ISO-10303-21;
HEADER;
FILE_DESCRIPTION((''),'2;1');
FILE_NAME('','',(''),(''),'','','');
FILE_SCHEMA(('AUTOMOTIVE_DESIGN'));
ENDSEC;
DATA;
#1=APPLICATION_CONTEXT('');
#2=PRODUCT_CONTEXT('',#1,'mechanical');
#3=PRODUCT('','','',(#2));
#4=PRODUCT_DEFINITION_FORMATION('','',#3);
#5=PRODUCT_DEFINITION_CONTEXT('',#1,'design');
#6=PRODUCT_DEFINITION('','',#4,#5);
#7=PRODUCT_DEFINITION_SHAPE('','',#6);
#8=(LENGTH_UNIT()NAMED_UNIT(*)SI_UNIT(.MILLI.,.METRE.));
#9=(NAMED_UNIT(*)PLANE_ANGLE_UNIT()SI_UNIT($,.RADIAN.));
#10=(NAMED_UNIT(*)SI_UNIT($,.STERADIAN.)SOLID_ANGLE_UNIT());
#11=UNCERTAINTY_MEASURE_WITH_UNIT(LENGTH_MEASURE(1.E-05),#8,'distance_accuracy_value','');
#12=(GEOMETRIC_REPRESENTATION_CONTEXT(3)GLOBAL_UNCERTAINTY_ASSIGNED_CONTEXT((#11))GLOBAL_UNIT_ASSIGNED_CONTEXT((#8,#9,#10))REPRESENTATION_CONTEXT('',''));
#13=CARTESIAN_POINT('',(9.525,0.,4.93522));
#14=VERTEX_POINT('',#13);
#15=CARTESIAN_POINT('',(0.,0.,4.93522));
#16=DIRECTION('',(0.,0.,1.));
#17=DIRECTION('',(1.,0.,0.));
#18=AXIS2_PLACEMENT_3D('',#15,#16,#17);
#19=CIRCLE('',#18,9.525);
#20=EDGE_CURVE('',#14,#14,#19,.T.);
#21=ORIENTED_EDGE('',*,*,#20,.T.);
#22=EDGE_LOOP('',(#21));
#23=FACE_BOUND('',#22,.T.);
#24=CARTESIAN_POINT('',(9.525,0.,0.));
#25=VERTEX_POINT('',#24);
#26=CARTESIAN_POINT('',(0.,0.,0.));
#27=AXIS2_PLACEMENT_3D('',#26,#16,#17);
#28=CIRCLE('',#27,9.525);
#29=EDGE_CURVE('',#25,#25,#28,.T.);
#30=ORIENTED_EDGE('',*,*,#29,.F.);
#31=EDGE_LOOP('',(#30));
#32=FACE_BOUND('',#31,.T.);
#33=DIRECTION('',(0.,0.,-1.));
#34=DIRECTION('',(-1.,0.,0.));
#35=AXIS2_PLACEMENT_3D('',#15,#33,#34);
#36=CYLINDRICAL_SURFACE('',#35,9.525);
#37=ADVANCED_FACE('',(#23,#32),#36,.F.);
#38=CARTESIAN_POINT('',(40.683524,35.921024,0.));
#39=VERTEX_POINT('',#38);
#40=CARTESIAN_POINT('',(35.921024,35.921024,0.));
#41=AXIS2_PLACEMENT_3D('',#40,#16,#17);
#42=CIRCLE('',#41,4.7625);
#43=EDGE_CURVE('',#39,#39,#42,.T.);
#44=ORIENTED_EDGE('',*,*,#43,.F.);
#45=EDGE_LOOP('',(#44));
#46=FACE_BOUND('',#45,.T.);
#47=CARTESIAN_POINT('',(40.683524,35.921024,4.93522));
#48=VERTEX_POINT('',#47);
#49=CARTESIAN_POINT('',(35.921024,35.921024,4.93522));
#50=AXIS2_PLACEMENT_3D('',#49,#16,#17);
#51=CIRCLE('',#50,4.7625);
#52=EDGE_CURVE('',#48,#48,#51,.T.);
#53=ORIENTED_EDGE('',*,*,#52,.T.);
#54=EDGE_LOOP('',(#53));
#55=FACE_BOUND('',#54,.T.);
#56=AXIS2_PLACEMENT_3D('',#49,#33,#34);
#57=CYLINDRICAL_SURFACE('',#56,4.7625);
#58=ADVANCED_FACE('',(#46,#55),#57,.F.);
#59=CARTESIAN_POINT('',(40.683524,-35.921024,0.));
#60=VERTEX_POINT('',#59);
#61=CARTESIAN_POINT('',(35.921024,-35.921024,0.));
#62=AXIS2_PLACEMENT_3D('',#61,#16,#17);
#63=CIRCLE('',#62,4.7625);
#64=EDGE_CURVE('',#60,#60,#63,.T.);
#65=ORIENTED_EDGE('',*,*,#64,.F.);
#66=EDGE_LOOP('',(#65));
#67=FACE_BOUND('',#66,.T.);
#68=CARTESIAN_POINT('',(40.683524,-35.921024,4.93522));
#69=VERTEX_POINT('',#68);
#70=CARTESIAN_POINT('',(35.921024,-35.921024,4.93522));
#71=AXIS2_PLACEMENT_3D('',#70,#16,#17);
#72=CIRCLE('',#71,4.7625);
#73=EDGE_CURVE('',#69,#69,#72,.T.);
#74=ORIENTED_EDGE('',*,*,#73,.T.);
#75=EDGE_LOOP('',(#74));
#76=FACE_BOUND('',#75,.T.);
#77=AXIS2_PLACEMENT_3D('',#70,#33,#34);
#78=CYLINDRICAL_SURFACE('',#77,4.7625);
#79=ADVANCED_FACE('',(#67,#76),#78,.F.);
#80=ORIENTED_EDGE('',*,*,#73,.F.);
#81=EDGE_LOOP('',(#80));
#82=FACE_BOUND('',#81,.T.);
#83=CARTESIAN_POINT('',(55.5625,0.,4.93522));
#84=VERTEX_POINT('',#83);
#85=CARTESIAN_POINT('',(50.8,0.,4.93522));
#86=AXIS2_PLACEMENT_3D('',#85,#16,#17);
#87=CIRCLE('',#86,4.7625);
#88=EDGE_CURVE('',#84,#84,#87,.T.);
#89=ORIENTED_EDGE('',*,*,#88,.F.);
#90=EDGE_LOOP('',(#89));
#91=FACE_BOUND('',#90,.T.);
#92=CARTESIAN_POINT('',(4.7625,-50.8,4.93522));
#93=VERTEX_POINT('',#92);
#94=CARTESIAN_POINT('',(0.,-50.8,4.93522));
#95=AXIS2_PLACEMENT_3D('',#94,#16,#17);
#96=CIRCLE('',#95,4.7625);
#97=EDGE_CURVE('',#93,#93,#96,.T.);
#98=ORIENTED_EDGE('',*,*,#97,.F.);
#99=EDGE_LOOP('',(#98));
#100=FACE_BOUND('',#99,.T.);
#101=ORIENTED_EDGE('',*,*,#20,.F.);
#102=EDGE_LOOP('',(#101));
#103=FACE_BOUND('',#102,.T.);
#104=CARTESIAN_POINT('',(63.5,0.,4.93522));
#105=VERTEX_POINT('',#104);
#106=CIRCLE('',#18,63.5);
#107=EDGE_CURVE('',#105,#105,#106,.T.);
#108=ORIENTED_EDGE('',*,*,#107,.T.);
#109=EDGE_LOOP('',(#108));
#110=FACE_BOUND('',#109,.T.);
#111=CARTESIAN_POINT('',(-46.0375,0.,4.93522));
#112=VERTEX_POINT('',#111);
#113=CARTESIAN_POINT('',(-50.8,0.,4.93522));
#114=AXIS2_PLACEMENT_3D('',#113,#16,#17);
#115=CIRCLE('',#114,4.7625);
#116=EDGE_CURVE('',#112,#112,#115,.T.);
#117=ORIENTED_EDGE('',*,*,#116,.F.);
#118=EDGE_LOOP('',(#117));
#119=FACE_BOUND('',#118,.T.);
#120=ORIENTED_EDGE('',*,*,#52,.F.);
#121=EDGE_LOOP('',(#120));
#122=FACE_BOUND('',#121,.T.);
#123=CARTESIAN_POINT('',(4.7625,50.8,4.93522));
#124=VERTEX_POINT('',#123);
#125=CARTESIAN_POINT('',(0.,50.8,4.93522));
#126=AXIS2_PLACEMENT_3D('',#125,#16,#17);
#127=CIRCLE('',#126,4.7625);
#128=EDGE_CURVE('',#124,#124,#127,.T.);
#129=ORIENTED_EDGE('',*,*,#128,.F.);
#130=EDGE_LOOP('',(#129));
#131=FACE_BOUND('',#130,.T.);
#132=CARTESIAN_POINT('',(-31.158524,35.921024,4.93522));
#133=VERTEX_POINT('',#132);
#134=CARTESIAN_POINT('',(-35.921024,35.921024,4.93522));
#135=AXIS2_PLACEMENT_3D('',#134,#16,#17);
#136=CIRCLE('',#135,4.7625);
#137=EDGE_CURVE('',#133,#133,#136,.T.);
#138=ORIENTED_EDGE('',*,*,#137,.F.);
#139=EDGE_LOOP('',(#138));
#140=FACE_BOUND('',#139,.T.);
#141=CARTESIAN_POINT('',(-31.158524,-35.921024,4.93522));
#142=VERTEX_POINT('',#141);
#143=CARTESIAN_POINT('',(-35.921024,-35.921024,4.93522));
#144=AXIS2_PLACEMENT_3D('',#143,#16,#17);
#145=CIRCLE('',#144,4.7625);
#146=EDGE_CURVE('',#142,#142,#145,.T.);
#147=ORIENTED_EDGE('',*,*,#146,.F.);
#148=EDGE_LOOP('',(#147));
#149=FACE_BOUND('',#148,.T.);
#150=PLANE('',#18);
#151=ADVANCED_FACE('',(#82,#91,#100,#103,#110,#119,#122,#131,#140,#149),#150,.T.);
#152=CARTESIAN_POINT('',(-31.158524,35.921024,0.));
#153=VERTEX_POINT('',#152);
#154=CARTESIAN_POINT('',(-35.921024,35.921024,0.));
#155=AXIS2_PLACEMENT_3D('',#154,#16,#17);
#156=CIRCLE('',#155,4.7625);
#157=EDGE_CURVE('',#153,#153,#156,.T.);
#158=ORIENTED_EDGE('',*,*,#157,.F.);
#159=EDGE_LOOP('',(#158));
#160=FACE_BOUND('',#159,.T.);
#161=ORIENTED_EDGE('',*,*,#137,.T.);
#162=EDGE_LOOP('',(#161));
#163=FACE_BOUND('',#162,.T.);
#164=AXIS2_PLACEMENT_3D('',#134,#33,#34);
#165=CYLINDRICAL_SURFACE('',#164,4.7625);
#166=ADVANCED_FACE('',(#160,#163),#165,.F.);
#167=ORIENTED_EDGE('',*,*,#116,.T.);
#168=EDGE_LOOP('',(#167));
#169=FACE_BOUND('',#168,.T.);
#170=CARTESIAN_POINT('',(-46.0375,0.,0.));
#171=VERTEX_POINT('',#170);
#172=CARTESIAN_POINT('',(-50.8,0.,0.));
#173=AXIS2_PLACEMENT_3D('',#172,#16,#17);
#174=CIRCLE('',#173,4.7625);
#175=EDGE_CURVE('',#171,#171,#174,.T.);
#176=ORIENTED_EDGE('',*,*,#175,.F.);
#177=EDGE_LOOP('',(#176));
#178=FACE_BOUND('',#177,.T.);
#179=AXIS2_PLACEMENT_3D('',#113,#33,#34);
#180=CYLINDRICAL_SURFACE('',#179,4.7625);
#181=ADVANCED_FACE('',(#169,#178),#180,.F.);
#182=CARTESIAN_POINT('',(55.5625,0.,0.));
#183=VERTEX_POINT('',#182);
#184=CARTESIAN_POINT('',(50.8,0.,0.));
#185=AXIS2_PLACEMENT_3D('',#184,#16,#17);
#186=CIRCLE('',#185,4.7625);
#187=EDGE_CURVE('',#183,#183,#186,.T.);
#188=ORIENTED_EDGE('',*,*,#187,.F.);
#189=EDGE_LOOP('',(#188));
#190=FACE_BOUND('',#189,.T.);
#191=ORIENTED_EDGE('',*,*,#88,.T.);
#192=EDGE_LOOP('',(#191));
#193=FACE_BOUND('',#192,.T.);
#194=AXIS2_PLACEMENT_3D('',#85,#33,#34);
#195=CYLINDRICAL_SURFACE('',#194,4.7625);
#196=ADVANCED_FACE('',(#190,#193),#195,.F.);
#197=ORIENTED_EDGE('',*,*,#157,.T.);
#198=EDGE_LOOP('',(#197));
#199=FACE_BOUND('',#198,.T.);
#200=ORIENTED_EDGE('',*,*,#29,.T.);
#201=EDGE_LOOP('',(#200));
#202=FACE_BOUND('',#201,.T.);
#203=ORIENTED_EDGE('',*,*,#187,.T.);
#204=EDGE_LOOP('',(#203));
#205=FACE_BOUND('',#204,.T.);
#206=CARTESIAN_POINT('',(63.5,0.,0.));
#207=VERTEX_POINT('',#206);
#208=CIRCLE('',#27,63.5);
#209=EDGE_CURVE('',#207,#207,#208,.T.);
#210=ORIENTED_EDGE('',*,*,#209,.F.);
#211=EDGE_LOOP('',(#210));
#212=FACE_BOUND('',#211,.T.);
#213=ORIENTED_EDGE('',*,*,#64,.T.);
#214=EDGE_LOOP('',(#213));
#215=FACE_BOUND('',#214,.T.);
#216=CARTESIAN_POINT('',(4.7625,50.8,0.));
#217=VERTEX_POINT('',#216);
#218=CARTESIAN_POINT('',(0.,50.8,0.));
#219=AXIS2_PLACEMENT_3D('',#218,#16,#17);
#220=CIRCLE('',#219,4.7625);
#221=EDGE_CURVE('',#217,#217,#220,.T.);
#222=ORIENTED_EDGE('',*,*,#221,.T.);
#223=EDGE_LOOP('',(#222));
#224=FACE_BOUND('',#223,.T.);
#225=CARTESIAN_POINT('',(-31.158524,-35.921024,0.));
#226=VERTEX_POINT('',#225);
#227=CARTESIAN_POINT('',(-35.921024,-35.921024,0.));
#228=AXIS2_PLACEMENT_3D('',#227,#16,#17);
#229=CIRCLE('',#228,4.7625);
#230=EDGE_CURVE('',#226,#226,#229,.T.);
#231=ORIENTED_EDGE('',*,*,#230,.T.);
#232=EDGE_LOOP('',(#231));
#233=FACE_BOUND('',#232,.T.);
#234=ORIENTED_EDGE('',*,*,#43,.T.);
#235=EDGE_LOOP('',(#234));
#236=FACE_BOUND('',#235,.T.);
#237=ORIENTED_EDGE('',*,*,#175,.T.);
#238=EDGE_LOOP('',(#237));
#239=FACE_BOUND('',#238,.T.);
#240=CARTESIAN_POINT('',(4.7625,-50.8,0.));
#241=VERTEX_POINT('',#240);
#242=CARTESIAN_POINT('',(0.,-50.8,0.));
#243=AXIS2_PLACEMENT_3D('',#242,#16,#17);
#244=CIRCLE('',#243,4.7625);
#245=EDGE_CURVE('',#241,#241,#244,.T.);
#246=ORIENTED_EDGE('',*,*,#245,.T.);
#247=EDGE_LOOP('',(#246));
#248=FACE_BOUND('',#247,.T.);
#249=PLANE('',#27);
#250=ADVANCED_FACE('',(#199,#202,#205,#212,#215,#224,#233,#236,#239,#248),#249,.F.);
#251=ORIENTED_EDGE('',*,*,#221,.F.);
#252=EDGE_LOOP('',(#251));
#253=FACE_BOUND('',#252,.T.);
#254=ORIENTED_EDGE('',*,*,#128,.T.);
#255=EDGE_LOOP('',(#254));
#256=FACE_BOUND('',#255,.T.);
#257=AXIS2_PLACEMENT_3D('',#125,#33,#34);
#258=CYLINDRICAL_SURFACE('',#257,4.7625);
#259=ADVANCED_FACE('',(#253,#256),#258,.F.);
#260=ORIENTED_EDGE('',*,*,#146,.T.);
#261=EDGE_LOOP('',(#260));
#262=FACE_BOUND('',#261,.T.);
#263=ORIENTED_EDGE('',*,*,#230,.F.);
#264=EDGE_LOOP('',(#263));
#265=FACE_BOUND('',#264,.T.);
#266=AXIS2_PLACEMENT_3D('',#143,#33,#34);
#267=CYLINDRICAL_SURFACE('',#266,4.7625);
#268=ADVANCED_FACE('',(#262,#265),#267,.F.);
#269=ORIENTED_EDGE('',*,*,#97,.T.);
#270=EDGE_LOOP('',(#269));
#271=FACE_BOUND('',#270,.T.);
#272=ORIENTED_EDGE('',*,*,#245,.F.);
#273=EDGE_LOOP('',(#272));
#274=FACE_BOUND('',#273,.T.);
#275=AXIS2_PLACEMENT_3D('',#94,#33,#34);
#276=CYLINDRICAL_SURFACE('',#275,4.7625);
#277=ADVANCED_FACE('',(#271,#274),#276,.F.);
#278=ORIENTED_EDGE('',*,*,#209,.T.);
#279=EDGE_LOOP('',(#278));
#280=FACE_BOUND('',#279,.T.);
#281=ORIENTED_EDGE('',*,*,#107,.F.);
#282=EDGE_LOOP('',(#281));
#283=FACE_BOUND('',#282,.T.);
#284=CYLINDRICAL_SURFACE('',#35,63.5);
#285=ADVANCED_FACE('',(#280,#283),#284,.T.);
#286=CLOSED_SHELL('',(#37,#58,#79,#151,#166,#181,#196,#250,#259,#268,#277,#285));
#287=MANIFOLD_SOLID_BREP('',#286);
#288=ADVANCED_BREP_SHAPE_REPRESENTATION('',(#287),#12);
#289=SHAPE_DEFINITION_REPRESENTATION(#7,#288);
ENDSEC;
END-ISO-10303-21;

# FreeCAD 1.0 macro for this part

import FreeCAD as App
import Part
import Sketcher
Q = App.Units.Quantity

doc = App.newDocument("Part")
params = doc.addObject("Spreadsheet::Sheet", "Params")
for row, (alias, value) in enumerate([
    ("sketch1_diameter", "5 in"),
    ("sketch1_diameter2", "0.75 in"),
    ("sketch1_diameter3", "0.375 in"),
    ("pad1_length", "0.1943 in"),
], start=1):
    params.set(f"A{row}", alias)
    params.set(f"B{row}", "=" + value)
    params.setAlias(f"B{row}", alias)

body = doc.addObject("PartDesign::Body", "Body")

# Sketch on XY plane
sketch1 = body.newObject("Sketcher::SketchObject", "Sketch")
sketch1.AttachmentSupport = (doc.getObject("XY_Plane"), [""])
sketch1.MapMode = "FlatFace"
sketch1.addGeometry(Part.Circle(App.Vector(0, 0, 0), App.Vector(0, 0, 1), 63.5), False)
sketch1.addGeometry(Part.Circle(App.Vector(-35.9, -35.9, 0), App.Vector(0, 0, 1), 4.8), False)
sketch1.addGeometry(Part.Circle(App.Vector(0, -50.8, 0), App.Vector(0, 0, 1), 4.8), False)
sketch1.addGeometry(Part.Circle(App.Vector(35.9, -35.9, 0), App.Vector(0, 0, 1), 4.8), False)
sketch1.addGeometry(Part.Circle(App.Vector(-50.8, 0, 0), App.Vector(0, 0, 1), 4.8), False)
sketch1.addGeometry(Part.Circle(App.Vector(-35.9, 35.9, 0), App.Vector(0, 0, 1), 4.8), False)
sketch1.addGeometry(Part.Circle(App.Vector(0, 0, 0), App.Vector(0, 0, 1), 9.5), False)
sketch1.addGeometry(Part.Circle(App.Vector(50.8, 0, 0), App.Vector(0, 0, 1), 4.8), False)
sketch1.addGeometry(Part.Circle(App.Vector(0, 50.8, 0), App.Vector(0, 0, 1), 4.8), False)
sketch1.addGeometry(Part.Circle(App.Vector(35.9, 35.9, 0), App.Vector(0, 0, 1), 4.8), False)
sketch1.addConstraint(Sketcher.Constraint("Coincident", 0, 3, -1, 1))
sketch1.addConstraint(Sketcher.Constraint("Coincident", 6, 3, -1, 1))
sketch1.addConstraint(Sketcher.Constraint("Equal", 1, 2))
sketch1.addConstraint(Sketcher.Constraint("Equal", 2, 3))
sketch1.addConstraint(Sketcher.Constraint("Equal", 3, 4))
sketch1.addConstraint(Sketcher.Constraint("Equal", 4, 5))
sketch1.addConstraint(Sketcher.Constraint("Equal", 5, 7))
sketch1.addConstraint(Sketcher.Constraint("Equal", 7, 8))
sketch1.addConstraint(Sketcher.Constraint("Equal", 8, 9))
sketch1.addConstraint(Sketcher.Constraint("Symmetric", 3, 3, 5, 3, -1, 1))
sketch1.addConstraint(Sketcher.Constraint("Symmetric", 4, 3, 7, 3, -1, 1))
sketch1.addConstraint(Sketcher.Constraint("Symmetric", 2, 3, 8, 3, -1, 1))
sketch1.addConstraint(Sketcher.Constraint("Symmetric", 1, 3, 9, 3, -1, 1))
sketch1.addConstraint(Sketcher.Constraint("Symmetric", 1, 3, 3, 3, -2))
sketch1.addConstraint(Sketcher.Constraint("PointOnObject", 2, 3, -2))
sketch1.addConstraint(Sketcher.Constraint("PointOnObject", 4, 3, -1))
sketch1.addConstraint(Sketcher.Constraint("Diameter", 0, Q("5 in")))
sketch1.addConstraint(Sketcher.Constraint("Diameter", 6, Q("0.75 in")))
sketch1.addConstraint(Sketcher.Constraint("Diameter", 1, Q("0.375 in")))
sketch1.addConstraint(Sketcher.Constraint("DistanceY", 2, 3, -1, 1, Q("2 in")))
sketch1.addConstraint(Sketcher.Constraint("DistanceX", 4, 3, -1, 1, Q("2 in")))
sketch1.addConstraint(Sketcher.Constraint("DistanceX", 1, 3, 3, 3, Q("71.842049 mm")))
sketch1.addConstraint(Sketcher.Constraint("DistanceY", 1, 3, 5, 3, Q("71.842049 mm")))
sketch1.setExpression("Constraints[16]", "Params.sketch1_diameter")
sketch1.setExpression("Constraints[17]", "Params.sketch1_diameter2")
sketch1.setExpression("Constraints[18]", "Params.sketch1_diameter3")
pad1 = body.newObject("PartDesign::Pad", "Pad")
pad1.Profile = sketch1
pad1.setExpression("Length", "Params.pad1_length")

doc.recompute()
